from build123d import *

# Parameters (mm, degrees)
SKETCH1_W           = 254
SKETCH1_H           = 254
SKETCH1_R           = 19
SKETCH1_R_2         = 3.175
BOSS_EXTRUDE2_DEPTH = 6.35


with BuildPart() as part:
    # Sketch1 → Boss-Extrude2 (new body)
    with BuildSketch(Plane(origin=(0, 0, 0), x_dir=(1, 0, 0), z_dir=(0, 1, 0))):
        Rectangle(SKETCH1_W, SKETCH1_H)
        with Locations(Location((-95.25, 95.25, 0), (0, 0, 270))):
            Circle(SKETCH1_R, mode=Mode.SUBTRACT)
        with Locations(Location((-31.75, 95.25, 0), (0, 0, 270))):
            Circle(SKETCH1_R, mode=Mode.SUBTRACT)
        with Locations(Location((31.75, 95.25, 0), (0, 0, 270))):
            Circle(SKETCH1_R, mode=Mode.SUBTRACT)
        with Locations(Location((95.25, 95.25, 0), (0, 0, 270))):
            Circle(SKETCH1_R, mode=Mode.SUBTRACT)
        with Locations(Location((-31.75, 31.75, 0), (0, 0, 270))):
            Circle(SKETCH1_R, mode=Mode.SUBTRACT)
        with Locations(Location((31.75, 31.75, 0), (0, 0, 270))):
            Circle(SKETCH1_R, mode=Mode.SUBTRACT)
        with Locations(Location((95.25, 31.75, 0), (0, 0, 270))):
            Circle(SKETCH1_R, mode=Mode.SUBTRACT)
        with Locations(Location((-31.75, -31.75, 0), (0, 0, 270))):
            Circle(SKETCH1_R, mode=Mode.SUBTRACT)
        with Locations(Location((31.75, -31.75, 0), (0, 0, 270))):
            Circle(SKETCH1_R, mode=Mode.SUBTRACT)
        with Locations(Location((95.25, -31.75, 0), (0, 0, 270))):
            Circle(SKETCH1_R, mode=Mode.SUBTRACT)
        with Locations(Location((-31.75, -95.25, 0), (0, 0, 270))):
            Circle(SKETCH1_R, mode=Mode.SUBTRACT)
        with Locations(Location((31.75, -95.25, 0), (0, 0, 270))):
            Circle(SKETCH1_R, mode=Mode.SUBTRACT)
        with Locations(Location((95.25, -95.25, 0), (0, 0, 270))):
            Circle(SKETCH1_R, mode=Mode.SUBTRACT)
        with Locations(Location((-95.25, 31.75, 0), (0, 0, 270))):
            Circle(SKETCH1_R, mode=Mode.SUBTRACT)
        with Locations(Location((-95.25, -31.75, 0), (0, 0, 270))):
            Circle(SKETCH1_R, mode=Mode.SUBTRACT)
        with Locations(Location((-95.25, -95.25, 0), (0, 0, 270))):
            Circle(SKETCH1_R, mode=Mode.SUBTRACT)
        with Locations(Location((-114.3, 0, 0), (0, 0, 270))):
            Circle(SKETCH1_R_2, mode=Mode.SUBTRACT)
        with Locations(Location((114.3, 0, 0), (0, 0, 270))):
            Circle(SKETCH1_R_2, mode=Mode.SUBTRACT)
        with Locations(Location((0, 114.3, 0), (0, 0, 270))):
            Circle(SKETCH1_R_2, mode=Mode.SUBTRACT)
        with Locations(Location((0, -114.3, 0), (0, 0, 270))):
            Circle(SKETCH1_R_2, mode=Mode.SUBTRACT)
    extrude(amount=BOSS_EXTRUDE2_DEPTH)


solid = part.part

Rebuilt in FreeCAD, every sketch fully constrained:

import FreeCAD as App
import Part
import Sketcher
Q = App.Units.Quantity

doc = App.newDocument("Part")
body = doc.addObject("PartDesign::Body", "Body")

# Sketch on XZ plane
sketch1 = doc.addObject("Sketcher::SketchObject", "Sketch")
body.addObject(sketch1)
sketch1.AttachmentSupport = (doc.XZ_Plane, [""])
sketch1.MapMode = "FlatFace"
sketch1.addGeometry([
    Part.LineSegment(App.Vector(-127, -127, 0), App.Vector(-127, 127, 0)),  # 0
    Part.LineSegment(App.Vector(-127, 127, 0), App.Vector(127, 127, 0)),  # 1
    Part.LineSegment(App.Vector(127, 127, 0), App.Vector(127, -127, 0)),  # 2
    Part.LineSegment(App.Vector(127, -127, 0), App.Vector(-127, -127, 0)),  # 3
    Part.Circle(App.Vector(-95.2, 95.2, 0), App.Vector(0, 0, 1), 19),  # 4
    Part.Circle(App.Vector(-31.8, 95.2, 0), App.Vector(0, 0, 1), 19),  # 5
    Part.Circle(App.Vector(-95.2, 31.8, 0), App.Vector(0, 0, 1), 19),  # 6
    Part.Circle(App.Vector(-31.8, 31.8, 0), App.Vector(0, 0, 1), 19),  # 7
    Part.Circle(App.Vector(0, 114.3, 0), App.Vector(0, 0, 1), 3.2),  # 8
    Part.Circle(App.Vector(31.8, 95.2, 0), App.Vector(0, 0, 1), 19),  # 9
    Part.Circle(App.Vector(95.2, 95.2, 0), App.Vector(0, 0, 1), 19),  # 10
    Part.Circle(App.Vector(31.8, 31.8, 0), App.Vector(0, 0, 1), 19),  # 11
    Part.Circle(App.Vector(95.2, 31.8, 0), App.Vector(0, 0, 1), 19),  # 12
    Part.Circle(App.Vector(-114.3, 0, 0), App.Vector(0, 0, 1), 3.2),  # 13
    Part.Circle(App.Vector(-95.2, -31.8, 0), App.Vector(0, 0, 1), 19),  # 14
    Part.Circle(App.Vector(-31.8, -31.8, 0), App.Vector(0, 0, 1), 19),  # 15
    Part.Circle(App.Vector(-95.2, -95.2, 0), App.Vector(0, 0, 1), 19),  # 16
    Part.Circle(App.Vector(-31.8, -95.2, 0), App.Vector(0, 0, 1), 19),  # 17
    Part.Circle(App.Vector(31.8, -31.8, 0), App.Vector(0, 0, 1), 19),  # 18
    Part.Circle(App.Vector(114.3, 0, 0), App.Vector(0, 0, 1), 3.2),  # 19
    Part.Circle(App.Vector(95.2, -31.8, 0), App.Vector(0, 0, 1), 19),  # 20
    Part.Circle(App.Vector(0, -114.3, 0), App.Vector(0, 0, 1), 3.2),  # 21
    Part.Circle(App.Vector(31.8, -95.2, 0), App.Vector(0, 0, 1), 19),  # 22
    Part.Circle(App.Vector(95.2, -95.2, 0), App.Vector(0, 0, 1), 19),  # 23
], False)
sketch1.addConstraint([
    Sketcher.Constraint("Coincident", 0, 2, 1, 1),
    Sketcher.Constraint("Coincident", 1, 2, 2, 1),
    Sketcher.Constraint("Coincident", 2, 2, 3, 1),
    Sketcher.Constraint("Coincident", 3, 2, 0, 1),
    Sketcher.Constraint("Vertical", 0),
    Sketcher.Constraint("Horizontal", 1),
    Sketcher.Constraint("Vertical", 2),
    Sketcher.Constraint("Horizontal", 3),
    Sketcher.Constraint("Equal", 4, 5),
    Sketcher.Constraint("Equal", 5, 6),
    Sketcher.Constraint("Equal", 6, 7),
    Sketcher.Constraint("Equal", 7, 9),
    Sketcher.Constraint("Equal", 9, 10),
    Sketcher.Constraint("Equal", 10, 11),
    Sketcher.Constraint("Equal", 11, 12),
    Sketcher.Constraint("Equal", 8, 13),
    Sketcher.Constraint("Equal", 12, 14),
    Sketcher.Constraint("Equal", 14, 15),
    Sketcher.Constraint("Equal", 15, 16),
    Sketcher.Constraint("Equal", 16, 17),
    Sketcher.Constraint("Equal", 17, 18),
    Sketcher.Constraint("Equal", 13, 19),
    Sketcher.Constraint("Equal", 18, 20),
    Sketcher.Constraint("Equal", 19, 21),
    Sketcher.Constraint("Equal", 20, 22),
    Sketcher.Constraint("Equal", 22, 23),
    Sketcher.Constraint("Symmetric", 12, 3, 14, 3, -1, 1),
    Sketcher.Constraint("Symmetric", 11, 3, 15, 3, -1, 1),
    Sketcher.Constraint("Symmetric", 10, 3, 16, 3, -1, 1),
    Sketcher.Constraint("Symmetric", 9, 3, 17, 3, -1, 1),
    Sketcher.Constraint("Symmetric", 7, 3, 18, 3, -1, 1),
    Sketcher.Constraint("Symmetric", 13, 3, 19, 3, -1, 1),
    Sketcher.Constraint("Symmetric", 6, 3, 20, 3, -1, 1),
    Sketcher.Constraint("Symmetric", 8, 3, 21, 3, -1, 1),
    Sketcher.Constraint("Symmetric", 5, 3, 22, 3, -1, 1),
    Sketcher.Constraint("Symmetric", 4, 3, 23, 3, -1, 1),
    Sketcher.Constraint("Symmetric", 0, 2, 2, 2, -1, 1),
    Sketcher.Constraint("Symmetric", 5, 3, 9, 3, -2),
    Sketcher.Constraint("Symmetric", 4, 3, 10, 3, -2),
    Sketcher.Constraint("Symmetric", 7, 3, 11, 3, -2),
    Sketcher.Constraint("Symmetric", 6, 3, 12, 3, -2),
    Sketcher.Constraint("PointOnObject", 8, 3, -2),
    Sketcher.Constraint("PointOnObject", 13, 3, -1),
    Sketcher.Constraint("Horizontal", 4, 3, 5, 3),
    Sketcher.Constraint("Horizontal", 6, 3, 7, 3),
    Sketcher.Constraint("Vertical", 4, 3, 6, 3),
    Sketcher.Constraint("Vertical", 5, 3, 7, 3),
    Sketcher.Constraint("Equal", 3, 0),
    Sketcher.Constraint("Diameter", 8, Q("0.25 in")),
    Sketcher.Constraint("DistanceX", 1, 1, 1, 2, Q("10 in")),
    Sketcher.Constraint("DistanceX", 4, 3, 9, 3, Q("5 in")),
    Sketcher.Constraint("DistanceY", 14, 3, 4, 3, Q("5 in")),
    Sketcher.Constraint("DistanceY", -1, 1, 8, 3, Q("4.5 in")),
    Sketcher.Constraint("DistanceX", 13, 3, -1, 1, Q("4.5 in")),
    Sketcher.Constraint("DistanceX", 4, 3, 5, 3, Q("2.5 in")),
    Sketcher.Constraint("DistanceY", 6, 3, 4, 3, Q("2.5 in")),
    Sketcher.Constraint("Diameter", 4, 38.0),
])
pad1 = doc.addObject("PartDesign::Pad", "Pad")
body.addObject(pad1)
pad1.Profile = sketch1
pad1.Length = Q("0.25 in")
pad1.Reversed = True

doc.recompute()
